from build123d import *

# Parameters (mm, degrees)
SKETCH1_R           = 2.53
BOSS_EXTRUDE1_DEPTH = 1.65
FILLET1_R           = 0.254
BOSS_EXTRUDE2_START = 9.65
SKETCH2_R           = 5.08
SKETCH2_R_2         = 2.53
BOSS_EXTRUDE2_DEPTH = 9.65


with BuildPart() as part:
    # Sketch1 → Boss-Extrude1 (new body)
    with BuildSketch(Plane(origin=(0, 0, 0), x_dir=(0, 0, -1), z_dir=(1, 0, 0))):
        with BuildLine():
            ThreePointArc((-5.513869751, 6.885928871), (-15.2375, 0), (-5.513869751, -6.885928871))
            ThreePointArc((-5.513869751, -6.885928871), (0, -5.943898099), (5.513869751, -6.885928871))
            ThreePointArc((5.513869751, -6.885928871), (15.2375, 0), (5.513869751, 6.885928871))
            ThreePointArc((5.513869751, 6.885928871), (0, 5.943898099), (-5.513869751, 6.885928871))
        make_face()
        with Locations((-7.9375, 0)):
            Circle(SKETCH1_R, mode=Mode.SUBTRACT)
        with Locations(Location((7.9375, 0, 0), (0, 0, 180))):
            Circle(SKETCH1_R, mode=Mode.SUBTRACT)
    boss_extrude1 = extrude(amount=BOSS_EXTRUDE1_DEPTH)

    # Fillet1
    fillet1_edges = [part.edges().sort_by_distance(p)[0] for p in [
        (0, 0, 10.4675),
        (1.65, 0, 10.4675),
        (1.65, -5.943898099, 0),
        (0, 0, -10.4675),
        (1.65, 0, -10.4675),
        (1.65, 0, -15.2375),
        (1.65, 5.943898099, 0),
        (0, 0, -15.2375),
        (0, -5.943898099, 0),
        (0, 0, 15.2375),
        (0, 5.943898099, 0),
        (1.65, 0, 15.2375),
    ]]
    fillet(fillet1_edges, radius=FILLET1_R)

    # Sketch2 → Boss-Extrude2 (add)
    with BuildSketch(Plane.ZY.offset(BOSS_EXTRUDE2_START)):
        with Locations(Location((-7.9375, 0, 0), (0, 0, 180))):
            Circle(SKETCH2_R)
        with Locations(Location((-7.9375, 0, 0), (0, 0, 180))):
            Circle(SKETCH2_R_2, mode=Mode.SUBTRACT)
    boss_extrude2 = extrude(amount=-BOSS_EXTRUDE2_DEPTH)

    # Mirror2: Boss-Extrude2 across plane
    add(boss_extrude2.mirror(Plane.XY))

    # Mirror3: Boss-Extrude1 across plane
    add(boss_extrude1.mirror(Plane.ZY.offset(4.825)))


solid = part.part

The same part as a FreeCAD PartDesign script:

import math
import FreeCAD as App
import Part
import Sketcher

V = App.Vector
Q = App.Units.Quantity


def edges_at(feature, points):
    """Names of the edges that pass closest to the given points."""
    edges = feature.Shape.Edges
    near = lambda p: min(range(len(edges)), key=lambda i: edges[i].distToShape(Part.Vertex(*p))[0])
    return sorted({f"Edge{near(p) + 1}" for p in points})

doc = App.newDocument("Part")
params = doc.addObject("Spreadsheet::Sheet", "Params")
for row, (alias, value) in enumerate([
    ("pad1_length", "1.65 mm"),
    ("fillet_radius", "0.01 in"),
    ("sketch2_diameter", "0.4 in"),
    ("pad2_length", "9.65 mm"),
], start=1):
    params.set(f"A{row}", alias)
    params.set(f"B{row}", "=" + value)
    params.setAlias(f"B{row}", alias)

body = doc.addObject("PartDesign::Body", "Body")

sketch1 = body.newObject("Sketcher::SketchObject", "Sketch")
sketch1.AttachmentSupport = (doc.getObject("YZ_Plane"), [""])
sketch1.MapMode = "FlatFace"
sketch1.addGeometry(Part.ArcOfCircle(Part.Circle(V(0, 7.9375, 0), V(0, 0, 1), 7.3), math.radians(-19.390464), math.radians(199.390464)), False)
sketch1.addGeometry(Part.ArcOfCircle(Part.Circle(V(-22.551732, 0, 0), V(0, 0, 1), 16.607834), math.radians(-19.390464), math.radians(19.390464)), False)
sketch1.addGeometry(Part.ArcOfCircle(Part.Circle(V(0, -7.9375, 0), V(0, 0, 1), 7.3), math.radians(160.609536), math.radians(379.390464)), False)
sketch1.addGeometry(Part.ArcOfCircle(Part.Circle(V(22.551732, 0, 0), V(0, 0, 1), 16.607834), math.radians(160.609536), math.radians(199.390464)), False)
sketch1.addGeometry(Part.Circle(V(0, 7.9375, 0), V(0, 0, 1), 2.53), False)
sketch1.addGeometry(Part.Circle(V(0, -7.9375, 0), V(0, 0, 1), 2.53), False)
sketch1.addConstraint(Sketcher.Constraint("Tangent", 0, 2, 1, 2))
sketch1.addConstraint(Sketcher.Constraint("Tangent", 1, 1, 2, 1))
sketch1.addConstraint(Sketcher.Constraint("Tangent", 2, 2, 3, 2))
sketch1.addConstraint(Sketcher.Constraint("Tangent", 3, 1, 0, 1))
sketch1.addConstraint(Sketcher.Constraint("Coincident", 4, 3, 0, 3))
sketch1.addConstraint(Sketcher.Constraint("Coincident", 5, 3, 2, 3))
sketch1.addConstraint(Sketcher.Constraint("Equal", 0, 2))
sketch1.addConstraint(Sketcher.Constraint("Equal", 1, 3))
sketch1.addConstraint(Sketcher.Constraint("Equal", 4, 5))
sketch1.addConstraint(Sketcher.Constraint("Symmetric", 0, 3, 2, 3, -1, 1))
sketch1.addConstraint(Sketcher.Constraint("PointOnObject", 0, 3, -2))
sketch1.addConstraint(Sketcher.Constraint("Diameter", 4, 5.06))
sketch1.addConstraint(Sketcher.Constraint("Radius", 0, 7.3))
sketch1.addConstraint(Sketcher.Constraint("DistanceY", -1, 1, 0, 3, Q("0.3125 in")))
sketch1.addConstraint(Sketcher.Constraint("Radius", 1, 16.607834))
pad1 = body.newObject("PartDesign::Pad", "Pad")
pad1.Profile = sketch1
pad1.setExpression("Length", "Params.pad1_length")
doc.recompute()

fillet = body.newObject("PartDesign::Fillet", "Fillet")
fillet.Base = (pad1, edges_at(pad1, [
    (0, 0, 10.467),
    (1.65, 0, 10.467),
    (1.65, -5.944, 0),
    (0, 0, -10.467),
    (1.65, 0, -10.467),
    (1.65, 0, -15.238),
    (1.65, 5.944, 0),
    (0, 0, -15.238),
    (0, -5.944, 0),
    (0, 0, 15.238),
    (0, 5.944, 0),
    (1.65, 0, 15.238),
]))
fillet.setExpression("Radius", "Params.fillet_radius")

sketch2 = body.newObject("Sketcher::SketchObject", "Sketch001")
sketch2.AttachmentSupport = (doc.getObject("YZ_Plane"), [""])
sketch2.MapMode = "FlatFace"
sketch2.AttachmentOffset = App.Placement(V(0, 0, -9.65), App.Rotation())
sketch2.addGeometry(Part.Circle(V(0, -7.9375, 0), V(0, 0, 1), 5.08), False)
sketch2.addGeometry(Part.Circle(V(0, -7.9375, 0), V(0, 0, 1), 2.53), False)
sketch2.addConstraint(Sketcher.Constraint("Coincident", 1, 3, 0, 3))
sketch2.addConstraint(Sketcher.Constraint("PointOnObject", 0, 3, -2))
sketch2.addConstraint(Sketcher.Constraint("Diameter", 0, Q("0.4 in")))
sketch2.addConstraint(Sketcher.Constraint("Diameter", 1, 5.06))
sketch2.addConstraint(Sketcher.Constraint("DistanceY", 0, 3, -1, 1, Q("0.3125 in")))
sketch2.setExpression("Constraints[2]", "Params.sketch2_diameter")
pad2 = body.newObject("PartDesign::Pad", "Pad001")
pad2.Profile = sketch2
pad2.setExpression("Length", "Params.pad2_length")
doc.recompute()

mirrored = body.newObject("PartDesign::Mirrored", "Mirrored")
mirrored.Originals = [pad2]
mirrored.MirrorPlane = (doc.getObject("XY_Plane"), [""])
body.Tip = mirrored
doc.recompute()

datumplane = body.newObject("PartDesign::Plane", "DatumPlane")
datumplane.AttachmentSupport = (doc.getObject("YZ_Plane"), [""])
datumplane.MapMode = "FlatFace"
datumplane.AttachmentOffset = App.Placement(V(0, 0, -4.825), App.Rotation())
mirrored2 = body.newObject("PartDesign::Mirrored", "Mirrored001")
mirrored2.Originals = [pad1]
mirrored2.MirrorPlane = (datumplane, [""])
body.Tip = mirrored2

doc.recompute()
